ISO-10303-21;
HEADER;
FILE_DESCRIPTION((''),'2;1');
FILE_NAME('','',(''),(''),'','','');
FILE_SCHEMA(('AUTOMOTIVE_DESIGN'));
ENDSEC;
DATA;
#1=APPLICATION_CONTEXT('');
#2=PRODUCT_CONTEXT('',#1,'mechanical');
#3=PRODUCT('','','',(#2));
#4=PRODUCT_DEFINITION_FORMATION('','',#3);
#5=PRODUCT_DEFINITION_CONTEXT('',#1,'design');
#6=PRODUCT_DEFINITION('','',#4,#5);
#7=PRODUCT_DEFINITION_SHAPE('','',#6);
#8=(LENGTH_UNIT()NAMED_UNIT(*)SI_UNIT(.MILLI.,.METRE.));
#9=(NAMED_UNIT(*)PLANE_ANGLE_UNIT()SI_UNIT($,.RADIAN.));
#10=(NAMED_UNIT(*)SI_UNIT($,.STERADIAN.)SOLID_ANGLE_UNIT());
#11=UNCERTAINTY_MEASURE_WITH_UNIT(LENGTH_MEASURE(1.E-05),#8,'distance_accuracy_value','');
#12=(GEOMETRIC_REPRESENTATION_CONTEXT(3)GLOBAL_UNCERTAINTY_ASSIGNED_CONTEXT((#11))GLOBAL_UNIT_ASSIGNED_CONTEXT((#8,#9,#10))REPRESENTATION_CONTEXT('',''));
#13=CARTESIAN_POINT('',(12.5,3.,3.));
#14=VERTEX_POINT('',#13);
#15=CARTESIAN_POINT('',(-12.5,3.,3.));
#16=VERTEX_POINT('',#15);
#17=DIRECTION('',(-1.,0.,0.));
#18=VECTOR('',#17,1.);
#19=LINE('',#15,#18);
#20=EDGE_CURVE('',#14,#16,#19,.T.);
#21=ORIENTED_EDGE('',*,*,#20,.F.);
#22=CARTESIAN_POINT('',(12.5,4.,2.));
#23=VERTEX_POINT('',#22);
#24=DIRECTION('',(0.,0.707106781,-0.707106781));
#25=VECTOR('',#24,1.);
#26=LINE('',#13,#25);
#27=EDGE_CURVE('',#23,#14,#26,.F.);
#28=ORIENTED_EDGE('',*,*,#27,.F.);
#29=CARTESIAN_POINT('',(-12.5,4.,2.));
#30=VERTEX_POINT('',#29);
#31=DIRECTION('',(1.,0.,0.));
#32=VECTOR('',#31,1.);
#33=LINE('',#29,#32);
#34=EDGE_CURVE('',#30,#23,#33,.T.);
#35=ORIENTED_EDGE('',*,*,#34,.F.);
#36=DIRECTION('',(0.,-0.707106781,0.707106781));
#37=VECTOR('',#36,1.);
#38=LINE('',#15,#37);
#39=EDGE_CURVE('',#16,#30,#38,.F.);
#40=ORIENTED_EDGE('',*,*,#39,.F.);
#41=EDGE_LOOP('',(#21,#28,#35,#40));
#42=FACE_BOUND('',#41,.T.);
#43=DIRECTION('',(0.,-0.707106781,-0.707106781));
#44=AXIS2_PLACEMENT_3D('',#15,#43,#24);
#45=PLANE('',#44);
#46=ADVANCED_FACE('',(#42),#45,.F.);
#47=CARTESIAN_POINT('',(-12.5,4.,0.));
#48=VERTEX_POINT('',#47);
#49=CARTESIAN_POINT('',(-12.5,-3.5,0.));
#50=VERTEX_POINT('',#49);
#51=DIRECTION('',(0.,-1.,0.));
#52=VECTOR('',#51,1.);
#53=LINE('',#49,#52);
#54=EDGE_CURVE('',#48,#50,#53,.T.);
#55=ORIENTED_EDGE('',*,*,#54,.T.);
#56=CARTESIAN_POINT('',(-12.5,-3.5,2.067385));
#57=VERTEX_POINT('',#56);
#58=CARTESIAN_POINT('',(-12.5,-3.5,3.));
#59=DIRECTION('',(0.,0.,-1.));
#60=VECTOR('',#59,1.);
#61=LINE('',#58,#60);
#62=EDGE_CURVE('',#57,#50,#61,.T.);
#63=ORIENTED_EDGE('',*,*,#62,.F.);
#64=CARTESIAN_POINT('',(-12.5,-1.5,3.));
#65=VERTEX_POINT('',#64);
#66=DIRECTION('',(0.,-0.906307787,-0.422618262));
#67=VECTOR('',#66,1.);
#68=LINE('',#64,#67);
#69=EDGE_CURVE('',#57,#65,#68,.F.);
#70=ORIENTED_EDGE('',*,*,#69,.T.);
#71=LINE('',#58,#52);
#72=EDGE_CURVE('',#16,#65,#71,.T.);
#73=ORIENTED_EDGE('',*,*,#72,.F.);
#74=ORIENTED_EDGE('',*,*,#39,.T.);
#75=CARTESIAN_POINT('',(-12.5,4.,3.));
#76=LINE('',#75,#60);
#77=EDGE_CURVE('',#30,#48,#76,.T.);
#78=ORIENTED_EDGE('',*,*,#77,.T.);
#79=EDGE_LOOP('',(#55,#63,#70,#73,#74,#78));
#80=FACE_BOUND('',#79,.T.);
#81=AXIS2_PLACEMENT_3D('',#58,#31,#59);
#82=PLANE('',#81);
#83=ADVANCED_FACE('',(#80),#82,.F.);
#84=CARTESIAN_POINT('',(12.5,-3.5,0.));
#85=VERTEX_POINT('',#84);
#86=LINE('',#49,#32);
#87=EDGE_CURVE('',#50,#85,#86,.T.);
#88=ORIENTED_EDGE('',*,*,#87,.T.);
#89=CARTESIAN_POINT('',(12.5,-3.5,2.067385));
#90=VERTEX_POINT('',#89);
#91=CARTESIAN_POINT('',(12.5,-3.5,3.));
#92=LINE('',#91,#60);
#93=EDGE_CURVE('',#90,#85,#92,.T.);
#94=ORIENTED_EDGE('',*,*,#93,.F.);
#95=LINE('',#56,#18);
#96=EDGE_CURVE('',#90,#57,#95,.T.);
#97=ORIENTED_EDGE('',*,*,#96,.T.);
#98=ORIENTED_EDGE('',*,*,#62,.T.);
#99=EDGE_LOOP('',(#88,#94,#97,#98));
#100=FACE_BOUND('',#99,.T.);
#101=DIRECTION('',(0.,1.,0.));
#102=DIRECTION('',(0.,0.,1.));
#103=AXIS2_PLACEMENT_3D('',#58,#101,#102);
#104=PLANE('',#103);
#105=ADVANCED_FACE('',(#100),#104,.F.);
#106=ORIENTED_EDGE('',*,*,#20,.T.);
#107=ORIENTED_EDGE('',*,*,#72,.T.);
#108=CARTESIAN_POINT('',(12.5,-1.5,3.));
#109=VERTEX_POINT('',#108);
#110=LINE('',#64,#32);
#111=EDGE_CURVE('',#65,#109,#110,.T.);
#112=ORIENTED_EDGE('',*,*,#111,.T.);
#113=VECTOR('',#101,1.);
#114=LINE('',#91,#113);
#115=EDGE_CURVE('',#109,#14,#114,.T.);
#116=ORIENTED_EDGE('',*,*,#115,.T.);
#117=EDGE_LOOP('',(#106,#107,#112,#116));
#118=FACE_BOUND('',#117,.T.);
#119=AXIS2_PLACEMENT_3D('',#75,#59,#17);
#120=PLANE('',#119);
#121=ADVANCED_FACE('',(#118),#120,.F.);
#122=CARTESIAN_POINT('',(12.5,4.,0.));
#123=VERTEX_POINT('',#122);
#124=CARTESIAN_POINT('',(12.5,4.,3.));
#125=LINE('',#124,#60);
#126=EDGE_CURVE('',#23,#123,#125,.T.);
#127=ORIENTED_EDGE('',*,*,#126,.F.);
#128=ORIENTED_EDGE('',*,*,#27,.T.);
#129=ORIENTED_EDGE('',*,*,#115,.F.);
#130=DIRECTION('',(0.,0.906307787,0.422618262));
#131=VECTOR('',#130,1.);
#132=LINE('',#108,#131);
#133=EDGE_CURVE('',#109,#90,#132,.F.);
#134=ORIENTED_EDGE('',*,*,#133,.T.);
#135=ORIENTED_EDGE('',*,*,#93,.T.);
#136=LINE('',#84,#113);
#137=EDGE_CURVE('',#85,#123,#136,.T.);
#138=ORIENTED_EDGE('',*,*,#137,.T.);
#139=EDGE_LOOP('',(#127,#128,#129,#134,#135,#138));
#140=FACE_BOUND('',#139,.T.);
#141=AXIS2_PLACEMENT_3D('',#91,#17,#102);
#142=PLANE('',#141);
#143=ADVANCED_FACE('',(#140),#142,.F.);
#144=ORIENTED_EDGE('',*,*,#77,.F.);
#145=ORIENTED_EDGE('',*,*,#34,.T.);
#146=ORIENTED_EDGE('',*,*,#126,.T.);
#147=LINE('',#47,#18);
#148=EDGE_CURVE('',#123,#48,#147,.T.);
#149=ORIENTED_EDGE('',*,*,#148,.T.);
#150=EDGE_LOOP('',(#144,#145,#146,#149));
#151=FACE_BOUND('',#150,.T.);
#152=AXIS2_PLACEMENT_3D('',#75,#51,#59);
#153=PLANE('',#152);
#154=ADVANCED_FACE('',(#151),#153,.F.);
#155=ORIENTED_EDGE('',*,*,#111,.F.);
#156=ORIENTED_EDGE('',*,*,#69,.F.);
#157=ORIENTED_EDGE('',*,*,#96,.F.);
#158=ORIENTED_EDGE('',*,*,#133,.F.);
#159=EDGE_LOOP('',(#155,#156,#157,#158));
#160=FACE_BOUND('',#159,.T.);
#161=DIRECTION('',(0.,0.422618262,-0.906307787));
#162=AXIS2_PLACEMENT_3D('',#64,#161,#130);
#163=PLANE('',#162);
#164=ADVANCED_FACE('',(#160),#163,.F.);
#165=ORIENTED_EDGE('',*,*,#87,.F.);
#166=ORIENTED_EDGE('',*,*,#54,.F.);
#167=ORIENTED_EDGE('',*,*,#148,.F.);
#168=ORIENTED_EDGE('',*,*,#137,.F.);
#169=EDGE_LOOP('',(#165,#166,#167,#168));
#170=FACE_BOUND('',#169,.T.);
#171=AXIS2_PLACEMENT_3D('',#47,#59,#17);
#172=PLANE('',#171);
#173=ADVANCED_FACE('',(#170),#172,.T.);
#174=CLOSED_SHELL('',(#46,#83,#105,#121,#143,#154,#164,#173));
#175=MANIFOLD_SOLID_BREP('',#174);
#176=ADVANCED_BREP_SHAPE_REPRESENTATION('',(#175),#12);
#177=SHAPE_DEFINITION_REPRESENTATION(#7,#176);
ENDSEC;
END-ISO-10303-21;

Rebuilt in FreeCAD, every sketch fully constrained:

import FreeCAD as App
import Part
import Sketcher

V = App.Vector


def edges_at(feature, points):
    """Names of the edges that pass closest to the given points."""
    edges = feature.Shape.Edges
    near = lambda p: min(range(len(edges)), key=lambda i: edges[i].distToShape(Part.Vertex(*p))[0])
    return sorted({f"Edge{near(p) + 1}" for p in points})


def add_polygon(sketch, points):
    """Adds a closed chain of lines whose ends are joined by coincident constraints."""
    first, n = sketch.GeometryCount, len(points)
    for a, b in zip(points, points[1:] + points[:1]):
        sketch.addGeometry(Part.LineSegment(App.Vector(*a, 0), App.Vector(*b, 0)), False)
    for i in range(n):
        sketch.addConstraint(Sketcher.Constraint("Coincident", first + i, 2, first + (i + 1) % n, 1))

doc = App.newDocument("Part")
params = doc.addObject("Spreadsheet::Sheet", "Params")
for row, (alias, value) in enumerate([
    ("sketch1_width", "25 mm"),
    ("sketch1_height", "7.5 mm"),
    ("pad1_length", "3 mm"),
    ("chamfer_size", "1 mm"),
    ("chamfer2_size", "2 mm"),
    ("chamfer2_size2", "0.932615 mm"),
], start=1):
    params.set(f"A{row}", alias)
    params.set(f"B{row}", "=" + value)
    params.setAlias(f"B{row}", alias)

body = doc.addObject("PartDesign::Body", "Body")

# Sketch on XY plane
sketch1 = doc.addObject("Sketcher::SketchObject", "Sketch")
body.addObject(sketch1)
sketch1.AttachmentSupport = (doc.XY_Plane, [""])
sketch1.MapMode = "FlatFace"
add_polygon(sketch1, [(-12.5, 4), (-12.5, -3.5), (12.5, -3.5), (12.5, 4)])  # lines 0-3
sketch1.addConstraint([
    Sketcher.Constraint("Vertical", 0),
    Sketcher.Constraint("Horizontal", 1),
    Sketcher.Constraint("Vertical", 2),
    Sketcher.Constraint("Horizontal", 3),
    Sketcher.Constraint("DistanceX", 1, 1, 1, 2, 25.0),
    Sketcher.Constraint("DistanceY", 0, 2, 0, 1, 7.5),
    Sketcher.Constraint("DistanceY", -1, 1, 2, 2, 4.0),
    Sketcher.Constraint("DistanceX", 0, 2, -1, 1, 12.5),
])
sketch1.setExpression("Constraints[8]", "Params.sketch1_width")
sketch1.setExpression("Constraints[9]", "Params.sketch1_height")
pad1 = doc.addObject("PartDesign::Pad", "Pad")
body.addObject(pad1)
pad1.Profile = sketch1
pad1.setExpression("Length", "Params.pad1_length")
doc.recompute()

chamfer = doc.addObject("PartDesign::Chamfer", "Chamfer")
body.addObject(chamfer)
chamfer.Base = (pad1, edges_at(pad1, [(0, 4, 3)]))
chamfer.setExpression("Size", "Params.chamfer_size")
doc.recompute()

chamfer2 = doc.addObject("PartDesign::Chamfer", "Chamfer001")
body.addObject(chamfer2)
chamfer2.Base = (chamfer, edges_at(chamfer, [(0, -3.5, 3)]))
chamfer2.ChamferType = "Two distances"
chamfer2.setExpression("Size", "Params.chamfer2_size")
chamfer2.setExpression("Size2", "Params.chamfer2_size2")

doc.recompute()
